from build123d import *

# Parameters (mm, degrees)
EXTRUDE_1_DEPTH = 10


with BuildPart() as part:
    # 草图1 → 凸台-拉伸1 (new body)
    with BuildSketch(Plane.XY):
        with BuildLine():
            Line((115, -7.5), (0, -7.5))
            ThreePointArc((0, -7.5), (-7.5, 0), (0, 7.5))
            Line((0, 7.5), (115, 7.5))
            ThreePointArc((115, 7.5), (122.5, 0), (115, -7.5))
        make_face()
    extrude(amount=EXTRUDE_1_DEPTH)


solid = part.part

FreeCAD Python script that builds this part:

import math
import FreeCAD as App
import Part
import Sketcher
from FreeCAD import Vector

doc = App.newDocument("Part")
params = doc.addObject("Spreadsheet::Sheet", "Params")
for row, (alias, value) in enumerate([
    ("sketch1_radius", "7.5 mm"),
    ("sketch1_width", "115 mm"),
    ("pad1_length", "10 mm"),
], start=1):
    params.set(f"A{row}", alias)
    params.set(f"B{row}", "=" + value)
    params.setAlias(f"B{row}", alias)

body = doc.addObject("PartDesign::Body", "Body")

sketch1 = body.newObject("Sketcher::SketchObject", "Sketch")
sketch1.AttachmentSupport = (doc.getObject("XY_Plane"), [""])
sketch1.MapMode = "FlatFace"
sketch1.addGeometry([
    Part.LineSegment(Vector(0, -7.5, 0), Vector(115, -7.5, 0)),
    Part.ArcOfCircle(Part.Circle(Vector(115, 0, 0), Vector(0, 0, 1), 7.5), math.radians(-90), math.radians(90)),
    Part.LineSegment(Vector(115, 7.5, 0), Vector(0, 7.5, 0)),
    Part.ArcOfCircle(Part.Circle(Vector(0, 0, 0), Vector(0, 0, 1), 7.5), math.radians(90), math.radians(270)),
], False)
sketch1.addConstraint([
    Sketcher.Constraint("Tangent", 0, 2, 1, 1),
    Sketcher.Constraint("Tangent", 1, 2, 2, 1),
    Sketcher.Constraint("Tangent", 2, 2, 3, 1),
    Sketcher.Constraint("Tangent", 3, 2, 0, 1),
    Sketcher.Constraint("Horizontal", 0),
    Sketcher.Constraint("Horizontal", 2),
    Sketcher.Constraint("Coincident", 3, 3, -1, 1),
    Sketcher.Constraint("Radius", 1, 7.5),
    Sketcher.Constraint("DistanceX", 0, 1, 0, 2, 115.0),
])
sketch1.setExpression("Constraints[7]", "Params.sketch1_radius")
sketch1.setExpression("Constraints[8]", "Params.sketch1_width")
pad1 = body.newObject("PartDesign::Pad", "Pad")
pad1.Profile = sketch1
pad1.setExpression("Length", "Params.pad1_length")

doc.recompute()
